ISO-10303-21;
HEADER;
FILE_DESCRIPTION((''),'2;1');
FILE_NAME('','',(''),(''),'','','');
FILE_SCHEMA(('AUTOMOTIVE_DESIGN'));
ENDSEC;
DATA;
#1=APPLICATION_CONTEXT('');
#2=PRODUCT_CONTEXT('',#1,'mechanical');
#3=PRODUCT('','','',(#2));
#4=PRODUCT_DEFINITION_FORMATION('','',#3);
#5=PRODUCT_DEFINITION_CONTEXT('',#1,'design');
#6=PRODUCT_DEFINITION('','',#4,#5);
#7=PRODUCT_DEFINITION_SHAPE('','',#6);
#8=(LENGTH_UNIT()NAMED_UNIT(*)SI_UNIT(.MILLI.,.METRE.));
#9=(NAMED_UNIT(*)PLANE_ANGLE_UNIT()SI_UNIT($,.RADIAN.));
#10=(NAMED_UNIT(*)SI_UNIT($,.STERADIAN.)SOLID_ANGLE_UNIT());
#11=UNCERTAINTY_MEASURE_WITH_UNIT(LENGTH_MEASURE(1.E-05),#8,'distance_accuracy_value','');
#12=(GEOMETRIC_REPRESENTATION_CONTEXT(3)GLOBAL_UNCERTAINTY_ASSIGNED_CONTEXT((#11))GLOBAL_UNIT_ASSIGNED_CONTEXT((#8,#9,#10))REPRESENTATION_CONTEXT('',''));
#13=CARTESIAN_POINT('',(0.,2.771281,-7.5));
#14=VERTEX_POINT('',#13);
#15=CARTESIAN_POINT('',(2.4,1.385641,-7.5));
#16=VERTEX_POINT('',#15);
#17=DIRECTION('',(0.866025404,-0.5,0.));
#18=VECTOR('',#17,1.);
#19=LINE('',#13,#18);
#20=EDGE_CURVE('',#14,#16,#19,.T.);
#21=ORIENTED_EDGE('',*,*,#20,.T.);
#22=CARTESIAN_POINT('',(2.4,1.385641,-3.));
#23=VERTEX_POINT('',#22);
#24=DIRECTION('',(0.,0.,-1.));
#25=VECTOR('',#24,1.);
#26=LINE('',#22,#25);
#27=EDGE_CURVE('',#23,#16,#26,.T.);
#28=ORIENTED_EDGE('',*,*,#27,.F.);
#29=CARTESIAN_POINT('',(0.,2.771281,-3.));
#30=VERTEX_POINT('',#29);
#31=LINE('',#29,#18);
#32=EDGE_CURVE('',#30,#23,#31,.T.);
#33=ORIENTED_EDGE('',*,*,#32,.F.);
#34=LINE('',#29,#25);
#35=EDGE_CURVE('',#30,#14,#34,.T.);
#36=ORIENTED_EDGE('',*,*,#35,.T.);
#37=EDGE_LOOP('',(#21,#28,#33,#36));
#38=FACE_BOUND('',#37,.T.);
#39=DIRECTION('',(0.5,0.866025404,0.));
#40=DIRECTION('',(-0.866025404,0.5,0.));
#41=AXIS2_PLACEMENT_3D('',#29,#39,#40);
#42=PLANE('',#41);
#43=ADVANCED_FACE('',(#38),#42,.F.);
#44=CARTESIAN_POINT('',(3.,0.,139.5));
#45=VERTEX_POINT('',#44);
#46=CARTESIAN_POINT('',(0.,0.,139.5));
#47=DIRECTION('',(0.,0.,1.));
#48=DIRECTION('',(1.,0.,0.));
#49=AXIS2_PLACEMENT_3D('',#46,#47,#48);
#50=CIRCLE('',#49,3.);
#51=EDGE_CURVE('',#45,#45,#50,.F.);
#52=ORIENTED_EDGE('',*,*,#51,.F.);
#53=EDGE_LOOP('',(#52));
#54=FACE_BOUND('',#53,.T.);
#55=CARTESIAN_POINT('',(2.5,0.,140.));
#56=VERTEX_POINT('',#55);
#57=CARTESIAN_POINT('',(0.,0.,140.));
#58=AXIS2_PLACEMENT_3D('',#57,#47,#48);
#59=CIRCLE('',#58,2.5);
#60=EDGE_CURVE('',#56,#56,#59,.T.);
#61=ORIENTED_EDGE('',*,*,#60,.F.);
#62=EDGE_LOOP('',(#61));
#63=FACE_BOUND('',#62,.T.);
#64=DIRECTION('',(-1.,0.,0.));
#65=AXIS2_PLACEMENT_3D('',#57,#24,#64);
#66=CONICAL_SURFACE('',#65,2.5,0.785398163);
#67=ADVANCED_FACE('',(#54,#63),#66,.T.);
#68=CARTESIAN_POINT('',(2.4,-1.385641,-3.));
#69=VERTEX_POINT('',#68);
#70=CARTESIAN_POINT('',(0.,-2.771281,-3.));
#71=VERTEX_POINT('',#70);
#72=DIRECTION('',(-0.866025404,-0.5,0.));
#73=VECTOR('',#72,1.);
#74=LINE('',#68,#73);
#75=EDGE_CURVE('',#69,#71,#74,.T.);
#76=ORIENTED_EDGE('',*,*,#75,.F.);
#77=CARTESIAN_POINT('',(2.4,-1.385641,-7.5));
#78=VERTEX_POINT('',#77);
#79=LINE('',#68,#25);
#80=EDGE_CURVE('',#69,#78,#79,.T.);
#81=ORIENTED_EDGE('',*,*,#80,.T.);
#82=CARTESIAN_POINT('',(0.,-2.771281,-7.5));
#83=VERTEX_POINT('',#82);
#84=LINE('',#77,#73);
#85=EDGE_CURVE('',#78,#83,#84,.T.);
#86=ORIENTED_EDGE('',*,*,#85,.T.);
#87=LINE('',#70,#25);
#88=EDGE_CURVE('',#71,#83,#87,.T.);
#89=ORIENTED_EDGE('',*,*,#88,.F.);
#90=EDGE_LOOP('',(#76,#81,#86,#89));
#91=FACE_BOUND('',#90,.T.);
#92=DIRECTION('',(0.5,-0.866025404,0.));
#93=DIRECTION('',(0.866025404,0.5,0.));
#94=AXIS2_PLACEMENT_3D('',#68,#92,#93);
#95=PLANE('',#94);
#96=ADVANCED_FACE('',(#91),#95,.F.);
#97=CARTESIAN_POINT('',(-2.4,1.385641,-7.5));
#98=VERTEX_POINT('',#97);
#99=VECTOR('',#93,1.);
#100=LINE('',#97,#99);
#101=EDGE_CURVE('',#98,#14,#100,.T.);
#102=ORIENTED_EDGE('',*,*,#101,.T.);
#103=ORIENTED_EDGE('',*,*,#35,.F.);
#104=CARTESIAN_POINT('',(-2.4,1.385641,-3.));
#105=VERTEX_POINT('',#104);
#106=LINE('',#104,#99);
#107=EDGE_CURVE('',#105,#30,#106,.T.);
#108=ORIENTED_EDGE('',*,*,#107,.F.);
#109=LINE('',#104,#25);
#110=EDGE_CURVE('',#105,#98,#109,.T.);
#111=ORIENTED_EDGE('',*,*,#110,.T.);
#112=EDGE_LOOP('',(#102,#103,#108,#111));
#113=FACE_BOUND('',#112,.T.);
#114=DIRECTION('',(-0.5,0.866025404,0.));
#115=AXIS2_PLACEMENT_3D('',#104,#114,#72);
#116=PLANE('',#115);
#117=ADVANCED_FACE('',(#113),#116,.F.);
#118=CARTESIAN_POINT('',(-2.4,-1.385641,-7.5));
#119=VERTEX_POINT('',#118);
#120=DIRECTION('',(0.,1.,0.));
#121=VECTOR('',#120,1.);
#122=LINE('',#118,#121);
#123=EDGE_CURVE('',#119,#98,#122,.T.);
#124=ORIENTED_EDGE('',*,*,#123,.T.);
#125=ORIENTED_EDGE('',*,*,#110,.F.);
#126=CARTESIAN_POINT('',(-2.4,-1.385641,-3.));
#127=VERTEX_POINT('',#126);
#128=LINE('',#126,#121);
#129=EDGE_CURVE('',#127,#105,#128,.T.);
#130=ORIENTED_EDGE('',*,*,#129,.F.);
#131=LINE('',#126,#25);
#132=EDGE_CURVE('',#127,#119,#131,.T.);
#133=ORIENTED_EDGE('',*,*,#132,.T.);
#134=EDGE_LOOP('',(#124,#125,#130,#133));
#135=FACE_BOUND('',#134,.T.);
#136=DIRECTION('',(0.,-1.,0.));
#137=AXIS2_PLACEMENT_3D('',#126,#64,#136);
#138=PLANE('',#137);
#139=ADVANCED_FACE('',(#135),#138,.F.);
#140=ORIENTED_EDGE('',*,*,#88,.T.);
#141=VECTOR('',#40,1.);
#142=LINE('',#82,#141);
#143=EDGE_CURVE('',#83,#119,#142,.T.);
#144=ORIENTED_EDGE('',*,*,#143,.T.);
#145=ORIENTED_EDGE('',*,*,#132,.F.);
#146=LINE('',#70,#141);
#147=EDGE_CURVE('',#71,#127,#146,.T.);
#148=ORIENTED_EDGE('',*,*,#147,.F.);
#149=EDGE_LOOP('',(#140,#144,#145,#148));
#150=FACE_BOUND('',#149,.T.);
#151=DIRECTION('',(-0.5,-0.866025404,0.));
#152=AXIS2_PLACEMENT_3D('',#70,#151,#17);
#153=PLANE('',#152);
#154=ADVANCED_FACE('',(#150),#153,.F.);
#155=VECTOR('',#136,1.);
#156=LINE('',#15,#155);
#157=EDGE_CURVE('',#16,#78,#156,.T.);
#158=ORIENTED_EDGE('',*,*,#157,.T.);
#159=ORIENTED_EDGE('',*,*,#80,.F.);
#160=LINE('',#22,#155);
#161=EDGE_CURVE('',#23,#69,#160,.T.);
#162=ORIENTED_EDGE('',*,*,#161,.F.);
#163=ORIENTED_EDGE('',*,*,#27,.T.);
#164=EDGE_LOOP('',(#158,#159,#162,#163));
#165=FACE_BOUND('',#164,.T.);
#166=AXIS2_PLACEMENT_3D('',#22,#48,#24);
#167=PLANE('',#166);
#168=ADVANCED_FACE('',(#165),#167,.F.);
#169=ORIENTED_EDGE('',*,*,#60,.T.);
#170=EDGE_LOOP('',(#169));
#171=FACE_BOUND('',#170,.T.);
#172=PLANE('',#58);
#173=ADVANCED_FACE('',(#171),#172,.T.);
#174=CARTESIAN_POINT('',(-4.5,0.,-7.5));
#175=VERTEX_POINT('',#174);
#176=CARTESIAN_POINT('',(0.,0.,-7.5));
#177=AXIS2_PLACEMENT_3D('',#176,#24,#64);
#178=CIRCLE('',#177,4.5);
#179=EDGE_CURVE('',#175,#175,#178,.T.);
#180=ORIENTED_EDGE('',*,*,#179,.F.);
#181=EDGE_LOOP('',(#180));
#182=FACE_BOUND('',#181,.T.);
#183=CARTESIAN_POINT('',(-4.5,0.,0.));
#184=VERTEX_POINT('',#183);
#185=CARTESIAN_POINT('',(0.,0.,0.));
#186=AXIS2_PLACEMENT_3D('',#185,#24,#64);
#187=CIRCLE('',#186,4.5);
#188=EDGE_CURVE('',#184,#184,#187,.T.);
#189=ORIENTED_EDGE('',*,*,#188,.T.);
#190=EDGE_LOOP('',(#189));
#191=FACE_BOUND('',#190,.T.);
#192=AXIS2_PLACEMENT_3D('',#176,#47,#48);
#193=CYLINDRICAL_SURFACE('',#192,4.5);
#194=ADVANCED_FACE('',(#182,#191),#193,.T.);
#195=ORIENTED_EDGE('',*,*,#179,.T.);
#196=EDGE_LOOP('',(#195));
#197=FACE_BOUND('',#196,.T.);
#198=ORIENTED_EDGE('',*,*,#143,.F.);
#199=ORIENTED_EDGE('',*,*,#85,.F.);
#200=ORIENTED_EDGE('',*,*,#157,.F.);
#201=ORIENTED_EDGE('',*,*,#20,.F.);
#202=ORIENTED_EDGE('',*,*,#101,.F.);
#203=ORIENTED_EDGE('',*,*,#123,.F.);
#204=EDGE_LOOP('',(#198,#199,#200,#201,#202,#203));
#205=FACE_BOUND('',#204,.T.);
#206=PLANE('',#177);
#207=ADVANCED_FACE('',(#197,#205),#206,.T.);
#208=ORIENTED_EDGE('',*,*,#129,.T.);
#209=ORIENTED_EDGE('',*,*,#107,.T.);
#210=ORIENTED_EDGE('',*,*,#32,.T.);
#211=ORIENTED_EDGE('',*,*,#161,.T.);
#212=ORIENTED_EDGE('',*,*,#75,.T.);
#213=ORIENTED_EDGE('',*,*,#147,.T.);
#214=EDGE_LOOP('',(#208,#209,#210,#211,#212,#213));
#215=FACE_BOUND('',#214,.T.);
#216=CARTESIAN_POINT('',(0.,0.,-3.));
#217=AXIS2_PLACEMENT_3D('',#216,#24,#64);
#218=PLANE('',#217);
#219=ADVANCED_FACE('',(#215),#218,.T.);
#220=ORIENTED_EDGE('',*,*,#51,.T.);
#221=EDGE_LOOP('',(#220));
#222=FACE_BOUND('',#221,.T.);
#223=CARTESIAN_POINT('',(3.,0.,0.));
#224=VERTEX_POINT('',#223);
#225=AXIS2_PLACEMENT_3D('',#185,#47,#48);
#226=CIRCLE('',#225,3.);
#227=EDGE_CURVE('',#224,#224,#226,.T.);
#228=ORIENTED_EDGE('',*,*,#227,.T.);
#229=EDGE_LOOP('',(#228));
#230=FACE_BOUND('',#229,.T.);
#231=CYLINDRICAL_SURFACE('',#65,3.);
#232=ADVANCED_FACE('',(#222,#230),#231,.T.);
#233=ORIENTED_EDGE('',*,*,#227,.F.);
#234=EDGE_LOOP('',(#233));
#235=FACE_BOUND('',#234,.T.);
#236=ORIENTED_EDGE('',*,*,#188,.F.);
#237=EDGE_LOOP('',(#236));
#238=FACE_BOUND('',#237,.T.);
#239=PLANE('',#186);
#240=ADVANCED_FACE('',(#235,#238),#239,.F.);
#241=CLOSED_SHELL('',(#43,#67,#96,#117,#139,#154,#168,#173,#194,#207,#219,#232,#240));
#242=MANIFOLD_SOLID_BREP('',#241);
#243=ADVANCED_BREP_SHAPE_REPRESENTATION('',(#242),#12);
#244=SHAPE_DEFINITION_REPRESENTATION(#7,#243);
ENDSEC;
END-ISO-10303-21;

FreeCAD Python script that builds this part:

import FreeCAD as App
import Part
import Sketcher
from FreeCAD import Vector
Q = App.Units.Quantity


def edges_at(feature, points):
    """Names of the edges that pass closest to the given points."""
    edges = feature.Shape.Edges
    near = lambda p: min(range(len(edges)), key=lambda i: edges[i].distToShape(Part.Vertex(*p))[0])
    return sorted({f"Edge{near(p) + 1}" for p in points})


def add_polygon(sketch, points):
    """Adds a closed chain of lines whose ends are joined by coincident constraints."""
    first, n = sketch.GeometryCount, len(points)
    for a, b in zip(points, points[1:] + points[:1]):
        sketch.addGeometry(Part.LineSegment(App.Vector(*a, 0), App.Vector(*b, 0)), False)
    for i in range(n):
        sketch.addConstraint(Sketcher.Constraint("Coincident", first + i, 2, first + (i + 1) % n, 1))

doc = App.newDocument("Part")
body = doc.addObject("PartDesign::Body", "Body")

# Sketch on XY plane
sketch1 = doc.addObject("Sketcher::SketchObject", "Sketch")
body.addObject(sketch1)
sketch1.AttachmentSupport = (doc.XY_Plane, [""])
sketch1.MapMode = "FlatFace"
sketch1.addGeometry(Part.Circle(Vector(0, 0, 0), Vector(0, 0, 1), 3), False)
sketch1.addConstraint([
    Sketcher.Constraint("Coincident", 0, 3, -1, 1),
    Sketcher.Constraint("Diameter", 0, 6.0),
])
pad1 = doc.addObject("PartDesign::Pad", "Pad")
body.addObject(pad1)
pad1.Profile = sketch1
pad1.Length = 140

# Sketch on XY plane
sketch2 = doc.addObject("Sketcher::SketchObject", "Sketch001")
body.addObject(sketch2)
sketch2.AttachmentSupport = (doc.XY_Plane, [""])
sketch2.MapMode = "FlatFace"
sketch2.addGeometry(Part.Circle(Vector(0, 0, 0), Vector(0, 0, 1), 4.5), False)
sketch2.addConstraint([
    Sketcher.Constraint("Coincident", 0, 3, -1, 1),
    Sketcher.Constraint("Diameter", 0, 9.0),
])
pad2 = doc.addObject("PartDesign::Pad", "Pad001")
body.addObject(pad2)
pad2.Profile = sketch2
pad2.Length = 7.5
pad2.Reversed = True

# Sketch on XY plane
sketch3 = doc.addObject("Sketcher::SketchObject", "Sketch002")
body.addObject(sketch3)
sketch3.AttachmentSupport = (doc.XY_Plane, [""])
sketch3.MapMode = "FlatFace"
sketch3.AttachmentOffset = App.Placement(Vector(0, 0, -7.5), App.Rotation())
add_polygon(sketch3, [(0, -2.8), (-2.4, -1.4), (-2.4, 1.4), (0, 2.8), (2.4, 1.4), (2.4, -1.4)])  # lines 0-5
sketch3.addConstraint([
    Sketcher.Constraint("Vertical", 1),
    Sketcher.Constraint("Vertical", 4),
    Sketcher.Constraint("Symmetric", 0, 2, 3, 2, -1, 1),
    Sketcher.Constraint("Symmetric", 2, 2, 5, 2, -1, 1),
    Sketcher.Constraint("PointOnObject", 2, 2, -2),
    Sketcher.Constraint("Parallel", 2, 5),
    Sketcher.Constraint("Horizontal", 1, 2, 3, 2),
    Sketcher.Constraint("Angle", 0, Q("150 deg")),
    Sketcher.Constraint("DistanceX", 0, 2, -1, 1, 2.4),
    Sketcher.Constraint("DistanceY", 1, 1, 1, 2, 2.771281),
])
pocket1 = doc.addObject("PartDesign::Pocket", "Pocket")
body.addObject(pocket1)
pocket1.Profile = sketch3
pocket1.Length = 4.5
pocket1.Reversed = True
doc.recompute()

chamfer = doc.addObject("PartDesign::Chamfer", "Chamfer")
body.addObject(chamfer)
chamfer.Base = (pocket1, edges_at(pocket1, [(-3, 0, 140)]))
chamfer.Size = 0.5

doc.recompute()
